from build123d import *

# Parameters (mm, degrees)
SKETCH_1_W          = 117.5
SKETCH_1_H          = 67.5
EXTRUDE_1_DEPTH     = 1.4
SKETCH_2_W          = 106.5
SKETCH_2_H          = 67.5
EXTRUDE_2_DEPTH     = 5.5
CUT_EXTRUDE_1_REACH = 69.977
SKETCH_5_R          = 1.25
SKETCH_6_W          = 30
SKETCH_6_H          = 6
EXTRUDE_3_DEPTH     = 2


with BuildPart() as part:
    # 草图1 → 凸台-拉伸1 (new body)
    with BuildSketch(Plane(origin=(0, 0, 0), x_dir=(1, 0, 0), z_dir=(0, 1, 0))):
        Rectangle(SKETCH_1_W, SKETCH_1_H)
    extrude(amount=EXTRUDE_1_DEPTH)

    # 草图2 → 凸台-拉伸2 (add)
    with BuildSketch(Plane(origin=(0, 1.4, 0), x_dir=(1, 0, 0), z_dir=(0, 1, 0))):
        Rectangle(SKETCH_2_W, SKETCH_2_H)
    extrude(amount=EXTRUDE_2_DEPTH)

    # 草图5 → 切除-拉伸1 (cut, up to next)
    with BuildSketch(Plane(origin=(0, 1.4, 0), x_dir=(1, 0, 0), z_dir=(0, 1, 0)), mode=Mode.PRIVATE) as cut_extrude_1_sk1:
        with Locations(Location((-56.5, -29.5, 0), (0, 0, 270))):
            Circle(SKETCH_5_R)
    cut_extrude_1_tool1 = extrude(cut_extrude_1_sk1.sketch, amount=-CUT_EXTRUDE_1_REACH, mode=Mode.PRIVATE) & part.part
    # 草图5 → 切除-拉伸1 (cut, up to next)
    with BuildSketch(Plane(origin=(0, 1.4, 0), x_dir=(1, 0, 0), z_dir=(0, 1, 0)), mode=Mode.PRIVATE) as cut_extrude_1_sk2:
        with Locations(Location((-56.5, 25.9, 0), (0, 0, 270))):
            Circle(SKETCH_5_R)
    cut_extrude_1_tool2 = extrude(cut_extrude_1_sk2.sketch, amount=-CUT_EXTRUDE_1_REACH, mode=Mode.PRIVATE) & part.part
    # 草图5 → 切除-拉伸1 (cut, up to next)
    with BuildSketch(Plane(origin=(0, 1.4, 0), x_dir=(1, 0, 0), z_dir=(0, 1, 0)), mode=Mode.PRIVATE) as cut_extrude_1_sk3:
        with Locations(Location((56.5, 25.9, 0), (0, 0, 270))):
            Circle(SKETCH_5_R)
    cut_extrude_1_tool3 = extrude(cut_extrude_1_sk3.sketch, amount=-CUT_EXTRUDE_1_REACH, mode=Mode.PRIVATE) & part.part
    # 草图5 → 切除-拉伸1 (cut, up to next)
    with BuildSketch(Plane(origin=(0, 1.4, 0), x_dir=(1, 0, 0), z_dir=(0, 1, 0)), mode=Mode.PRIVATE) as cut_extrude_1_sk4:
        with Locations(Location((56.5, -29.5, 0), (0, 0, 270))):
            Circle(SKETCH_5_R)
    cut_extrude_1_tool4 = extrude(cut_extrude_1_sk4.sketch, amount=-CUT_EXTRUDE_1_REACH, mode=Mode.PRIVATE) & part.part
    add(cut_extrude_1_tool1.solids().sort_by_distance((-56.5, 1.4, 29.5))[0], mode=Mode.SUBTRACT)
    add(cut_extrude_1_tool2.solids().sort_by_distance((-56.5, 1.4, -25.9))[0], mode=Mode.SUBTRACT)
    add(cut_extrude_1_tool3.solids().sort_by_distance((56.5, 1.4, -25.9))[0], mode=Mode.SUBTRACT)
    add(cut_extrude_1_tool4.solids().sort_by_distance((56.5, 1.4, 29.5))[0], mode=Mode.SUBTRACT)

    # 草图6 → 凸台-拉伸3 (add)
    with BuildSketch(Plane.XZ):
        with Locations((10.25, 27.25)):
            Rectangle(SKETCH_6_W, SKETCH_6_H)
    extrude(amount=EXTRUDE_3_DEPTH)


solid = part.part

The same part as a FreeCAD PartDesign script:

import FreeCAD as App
import Part
import Sketcher

V = App.Vector
Q = App.Units.Quantity

doc = App.newDocument("Part")
params = doc.addObject("Spreadsheet::Sheet", "Params")
for row, (alias, value) in enumerate([
    ("sketch1_width", "117.5 mm"),
    ("sketch1_height", "67.5 mm"),
    ("pad1_length", "1.4 mm"),
    ("sketch2_width", "106.5 mm"),
    ("sketch2_height", "67.5 mm"),
    ("pad2_length", "5.5 mm"),
    ("sketch3_diameter", "2.5 mm"),
    ("sketch4_diameter", "2.5 mm"),
    ("sketch5_diameter", "2.5 mm"),
    ("sketch6_diameter", "2.5 mm"),
    ("sketch7_width", "30 mm"),
    ("sketch7_height", "6 mm"),
    ("pad3_length", "2 mm"),
], start=1):
    params.set(f"A{row}", alias)
    params.set(f"B{row}", "=" + value)
    params.setAlias(f"B{row}", alias)

body = doc.addObject("PartDesign::Body", "Body")

sketch1 = body.newObject("Sketcher::SketchObject", "Sketch")
sketch1.AttachmentSupport = (doc.getObject("XZ_Plane"), [""])
sketch1.MapMode = "FlatFace"
sketch1.addGeometry([
    Part.LineSegment(V(-59, -34, 0), V(-59, 34, 0)),
    Part.LineSegment(V(-59, 34, 0), V(59, 34, 0)),
    Part.LineSegment(V(59, 34, 0), V(59, -34, 0)),
    Part.LineSegment(V(59, -34, 0), V(-59, -34, 0)),
], False)
sketch1.addConstraint([
    Sketcher.Constraint("Coincident", 0, 2, 1, 1),
    Sketcher.Constraint("Coincident", 1, 2, 2, 1),
    Sketcher.Constraint("Coincident", 2, 2, 3, 1),
    Sketcher.Constraint("Coincident", 3, 2, 0, 1),
    Sketcher.Constraint("Vertical", 0),
    Sketcher.Constraint("Horizontal", 1),
    Sketcher.Constraint("Vertical", 2),
    Sketcher.Constraint("Horizontal", 3),
    Sketcher.Constraint("Symmetric", 0, 2, 2, 2, -1, 1),
    Sketcher.Constraint("DistanceX", 1, 1, 1, 2, Q("117.5 mm")),
    Sketcher.Constraint("DistanceY", 0, 1, 0, 2, Q("67.5 mm")),
])
sketch1.setExpression("Constraints[9]", "Params.sketch1_width")
sketch1.setExpression("Constraints[10]", "Params.sketch1_height")
pad1 = body.newObject("PartDesign::Pad", "Pad")
pad1.Profile = sketch1
pad1.setExpression("Length", "Params.pad1_length")
pad1.Reversed = True

sketch2 = body.newObject("Sketcher::SketchObject", "Sketch001")
sketch2.AttachmentSupport = (doc.getObject("XZ_Plane"), [""])
sketch2.MapMode = "FlatFace"
sketch2.AttachmentOffset = App.Placement(V(0, 0, -1.4), App.Rotation())
sketch2.addGeometry([
    Part.LineSegment(V(-53, -34, 0), V(-53, 34, 0)),
    Part.LineSegment(V(-53, 34, 0), V(53, 34, 0)),
    Part.LineSegment(V(53, 34, 0), V(53, -34, 0)),
    Part.LineSegment(V(53, -34, 0), V(-53, -34, 0)),
], False)
sketch2.addConstraint([
    Sketcher.Constraint("Coincident", 0, 2, 1, 1),
    Sketcher.Constraint("Coincident", 1, 2, 2, 1),
    Sketcher.Constraint("Coincident", 2, 2, 3, 1),
    Sketcher.Constraint("Coincident", 3, 2, 0, 1),
    Sketcher.Constraint("Vertical", 0),
    Sketcher.Constraint("Horizontal", 1),
    Sketcher.Constraint("Vertical", 2),
    Sketcher.Constraint("Horizontal", 3),
    Sketcher.Constraint("Symmetric", 0, 2, 2, 2, -1, 1),
    Sketcher.Constraint("DistanceX", 1, 1, 1, 2, Q("106.5 mm")),
    Sketcher.Constraint("DistanceY", 0, 1, 0, 2, Q("67.5 mm")),
])
sketch2.setExpression("Constraints[9]", "Params.sketch2_width")
sketch2.setExpression("Constraints[10]", "Params.sketch2_height")
pad2 = body.newObject("PartDesign::Pad", "Pad001")
pad2.Profile = sketch2
pad2.setExpression("Length", "Params.pad2_length")
pad2.Reversed = True

sketch3 = body.newObject("Sketcher::SketchObject", "Sketch002")
sketch3.AttachmentSupport = (doc.getObject("XZ_Plane"), [""])
sketch3.MapMode = "FlatFace"
sketch3.AttachmentOffset = App.Placement(V(0, 0, -1.4), App.Rotation())
sketch3.addGeometry(Part.Circle(V(-56.5, 29.5, 0), V(0, 0, 1), 1.2), False)
sketch3.addConstraint([
    Sketcher.Constraint("Diameter", 0, Q("2.5 mm")),
    Sketcher.Constraint("DistanceX", 0, 3, -1, 1, Q("56.5 mm")),
    Sketcher.Constraint("DistanceY", -1, 1, 0, 3, Q("29.5 mm")),
])
sketch3.setExpression("Constraints[0]", "Params.sketch3_diameter")
pocket1 = body.newObject("PartDesign::Pocket", "Pocket")
pocket1.Profile = sketch3
pocket1.Type = "UpToFirst"
pocket1.Reversed = True

sketch4 = body.newObject("Sketcher::SketchObject", "Sketch003")
sketch4.AttachmentSupport = (doc.getObject("XZ_Plane"), [""])
sketch4.MapMode = "FlatFace"
sketch4.AttachmentOffset = App.Placement(V(0, 0, -1.4), App.Rotation())
sketch4.addGeometry(Part.Circle(V(-56.5, -25.9, 0), V(0, 0, 1), 1.2), False)
sketch4.addConstraint([
    Sketcher.Constraint("Diameter", 0, Q("2.5 mm")),
    Sketcher.Constraint("DistanceX", 0, 3, -1, 1, Q("56.5 mm")),
    Sketcher.Constraint("DistanceY", 0, 3, -1, 1, Q("25.9 mm")),
])
sketch4.setExpression("Constraints[0]", "Params.sketch4_diameter")
pocket2 = body.newObject("PartDesign::Pocket", "Pocket001")
pocket2.Profile = sketch4
pocket2.Type = "UpToFirst"
pocket2.Reversed = True

sketch5 = body.newObject("Sketcher::SketchObject", "Sketch004")
sketch5.AttachmentSupport = (doc.getObject("XZ_Plane"), [""])
sketch5.MapMode = "FlatFace"
sketch5.AttachmentOffset = App.Placement(V(0, 0, -1.4), App.Rotation())
sketch5.addGeometry(Part.Circle(V(56.5, -25.9, 0), V(0, 0, 1), 1.2), False)
sketch5.addConstraint([
    Sketcher.Constraint("Diameter", 0, Q("2.5 mm")),
    Sketcher.Constraint("DistanceX", -1, 1, 0, 3, Q("56.5 mm")),
    Sketcher.Constraint("DistanceY", 0, 3, -1, 1, Q("25.9 mm")),
])
sketch5.setExpression("Constraints[0]", "Params.sketch5_diameter")
pocket3 = body.newObject("PartDesign::Pocket", "Pocket002")
pocket3.Profile = sketch5
pocket3.Type = "UpToFirst"
pocket3.Reversed = True

sketch6 = body.newObject("Sketcher::SketchObject", "Sketch005")
sketch6.AttachmentSupport = (doc.getObject("XZ_Plane"), [""])
sketch6.MapMode = "FlatFace"
sketch6.AttachmentOffset = App.Placement(V(0, 0, -1.4), App.Rotation())
sketch6.addGeometry(Part.Circle(V(56.5, 29.5, 0), V(0, 0, 1), 1.2), False)
sketch6.addConstraint([
    Sketcher.Constraint("Diameter", 0, Q("2.5 mm")),
    Sketcher.Constraint("DistanceX", -1, 1, 0, 3, Q("56.5 mm")),
    Sketcher.Constraint("DistanceY", -1, 1, 0, 3, Q("29.5 mm")),
])
sketch6.setExpression("Constraints[0]", "Params.sketch6_diameter")
pocket4 = body.newObject("PartDesign::Pocket", "Pocket003")
pocket4.Profile = sketch6
pocket4.Type = "UpToFirst"
pocket4.Reversed = True

sketch7 = body.newObject("Sketcher::SketchObject", "Sketch006")
sketch7.AttachmentSupport = (doc.getObject("XZ_Plane"), [""])
sketch7.MapMode = "FlatFace"
sketch7.addGeometry([
    Part.LineSegment(V(-5, 30, 0), V(-5, 24, 0)),
    Part.LineSegment(V(-5, 24, 0), V(25, 24, 0)),
    Part.LineSegment(V(25, 24, 0), V(25, 30, 0)),
    Part.LineSegment(V(25, 30, 0), V(-5, 30, 0)),
], False)
sketch7.addConstraint([
    Sketcher.Constraint("Coincident", 0, 2, 1, 1),
    Sketcher.Constraint("Coincident", 1, 2, 2, 1),
    Sketcher.Constraint("Coincident", 2, 2, 3, 1),
    Sketcher.Constraint("Coincident", 3, 2, 0, 1),
    Sketcher.Constraint("Vertical", 0),
    Sketcher.Constraint("Horizontal", 1),
    Sketcher.Constraint("Vertical", 2),
    Sketcher.Constraint("Horizontal", 3),
    Sketcher.Constraint("DistanceX", 1, 1, 1, 2, Q("30 mm")),
    Sketcher.Constraint("DistanceY", 0, 2, 0, 1, Q("6 mm")),
    Sketcher.Constraint("DistanceX", 0, 2, -1, 1, Q("4.75 mm")),
    Sketcher.Constraint("DistanceY", -1, 1, 0, 2, Q("24.25 mm")),
])
sketch7.setExpression("Constraints[8]", "Params.sketch7_width")
sketch7.setExpression("Constraints[9]", "Params.sketch7_height")
pad3 = body.newObject("PartDesign::Pad", "Pad002")
pad3.Profile = sketch7
pad3.setExpression("Length", "Params.pad3_length")

doc.recompute()
